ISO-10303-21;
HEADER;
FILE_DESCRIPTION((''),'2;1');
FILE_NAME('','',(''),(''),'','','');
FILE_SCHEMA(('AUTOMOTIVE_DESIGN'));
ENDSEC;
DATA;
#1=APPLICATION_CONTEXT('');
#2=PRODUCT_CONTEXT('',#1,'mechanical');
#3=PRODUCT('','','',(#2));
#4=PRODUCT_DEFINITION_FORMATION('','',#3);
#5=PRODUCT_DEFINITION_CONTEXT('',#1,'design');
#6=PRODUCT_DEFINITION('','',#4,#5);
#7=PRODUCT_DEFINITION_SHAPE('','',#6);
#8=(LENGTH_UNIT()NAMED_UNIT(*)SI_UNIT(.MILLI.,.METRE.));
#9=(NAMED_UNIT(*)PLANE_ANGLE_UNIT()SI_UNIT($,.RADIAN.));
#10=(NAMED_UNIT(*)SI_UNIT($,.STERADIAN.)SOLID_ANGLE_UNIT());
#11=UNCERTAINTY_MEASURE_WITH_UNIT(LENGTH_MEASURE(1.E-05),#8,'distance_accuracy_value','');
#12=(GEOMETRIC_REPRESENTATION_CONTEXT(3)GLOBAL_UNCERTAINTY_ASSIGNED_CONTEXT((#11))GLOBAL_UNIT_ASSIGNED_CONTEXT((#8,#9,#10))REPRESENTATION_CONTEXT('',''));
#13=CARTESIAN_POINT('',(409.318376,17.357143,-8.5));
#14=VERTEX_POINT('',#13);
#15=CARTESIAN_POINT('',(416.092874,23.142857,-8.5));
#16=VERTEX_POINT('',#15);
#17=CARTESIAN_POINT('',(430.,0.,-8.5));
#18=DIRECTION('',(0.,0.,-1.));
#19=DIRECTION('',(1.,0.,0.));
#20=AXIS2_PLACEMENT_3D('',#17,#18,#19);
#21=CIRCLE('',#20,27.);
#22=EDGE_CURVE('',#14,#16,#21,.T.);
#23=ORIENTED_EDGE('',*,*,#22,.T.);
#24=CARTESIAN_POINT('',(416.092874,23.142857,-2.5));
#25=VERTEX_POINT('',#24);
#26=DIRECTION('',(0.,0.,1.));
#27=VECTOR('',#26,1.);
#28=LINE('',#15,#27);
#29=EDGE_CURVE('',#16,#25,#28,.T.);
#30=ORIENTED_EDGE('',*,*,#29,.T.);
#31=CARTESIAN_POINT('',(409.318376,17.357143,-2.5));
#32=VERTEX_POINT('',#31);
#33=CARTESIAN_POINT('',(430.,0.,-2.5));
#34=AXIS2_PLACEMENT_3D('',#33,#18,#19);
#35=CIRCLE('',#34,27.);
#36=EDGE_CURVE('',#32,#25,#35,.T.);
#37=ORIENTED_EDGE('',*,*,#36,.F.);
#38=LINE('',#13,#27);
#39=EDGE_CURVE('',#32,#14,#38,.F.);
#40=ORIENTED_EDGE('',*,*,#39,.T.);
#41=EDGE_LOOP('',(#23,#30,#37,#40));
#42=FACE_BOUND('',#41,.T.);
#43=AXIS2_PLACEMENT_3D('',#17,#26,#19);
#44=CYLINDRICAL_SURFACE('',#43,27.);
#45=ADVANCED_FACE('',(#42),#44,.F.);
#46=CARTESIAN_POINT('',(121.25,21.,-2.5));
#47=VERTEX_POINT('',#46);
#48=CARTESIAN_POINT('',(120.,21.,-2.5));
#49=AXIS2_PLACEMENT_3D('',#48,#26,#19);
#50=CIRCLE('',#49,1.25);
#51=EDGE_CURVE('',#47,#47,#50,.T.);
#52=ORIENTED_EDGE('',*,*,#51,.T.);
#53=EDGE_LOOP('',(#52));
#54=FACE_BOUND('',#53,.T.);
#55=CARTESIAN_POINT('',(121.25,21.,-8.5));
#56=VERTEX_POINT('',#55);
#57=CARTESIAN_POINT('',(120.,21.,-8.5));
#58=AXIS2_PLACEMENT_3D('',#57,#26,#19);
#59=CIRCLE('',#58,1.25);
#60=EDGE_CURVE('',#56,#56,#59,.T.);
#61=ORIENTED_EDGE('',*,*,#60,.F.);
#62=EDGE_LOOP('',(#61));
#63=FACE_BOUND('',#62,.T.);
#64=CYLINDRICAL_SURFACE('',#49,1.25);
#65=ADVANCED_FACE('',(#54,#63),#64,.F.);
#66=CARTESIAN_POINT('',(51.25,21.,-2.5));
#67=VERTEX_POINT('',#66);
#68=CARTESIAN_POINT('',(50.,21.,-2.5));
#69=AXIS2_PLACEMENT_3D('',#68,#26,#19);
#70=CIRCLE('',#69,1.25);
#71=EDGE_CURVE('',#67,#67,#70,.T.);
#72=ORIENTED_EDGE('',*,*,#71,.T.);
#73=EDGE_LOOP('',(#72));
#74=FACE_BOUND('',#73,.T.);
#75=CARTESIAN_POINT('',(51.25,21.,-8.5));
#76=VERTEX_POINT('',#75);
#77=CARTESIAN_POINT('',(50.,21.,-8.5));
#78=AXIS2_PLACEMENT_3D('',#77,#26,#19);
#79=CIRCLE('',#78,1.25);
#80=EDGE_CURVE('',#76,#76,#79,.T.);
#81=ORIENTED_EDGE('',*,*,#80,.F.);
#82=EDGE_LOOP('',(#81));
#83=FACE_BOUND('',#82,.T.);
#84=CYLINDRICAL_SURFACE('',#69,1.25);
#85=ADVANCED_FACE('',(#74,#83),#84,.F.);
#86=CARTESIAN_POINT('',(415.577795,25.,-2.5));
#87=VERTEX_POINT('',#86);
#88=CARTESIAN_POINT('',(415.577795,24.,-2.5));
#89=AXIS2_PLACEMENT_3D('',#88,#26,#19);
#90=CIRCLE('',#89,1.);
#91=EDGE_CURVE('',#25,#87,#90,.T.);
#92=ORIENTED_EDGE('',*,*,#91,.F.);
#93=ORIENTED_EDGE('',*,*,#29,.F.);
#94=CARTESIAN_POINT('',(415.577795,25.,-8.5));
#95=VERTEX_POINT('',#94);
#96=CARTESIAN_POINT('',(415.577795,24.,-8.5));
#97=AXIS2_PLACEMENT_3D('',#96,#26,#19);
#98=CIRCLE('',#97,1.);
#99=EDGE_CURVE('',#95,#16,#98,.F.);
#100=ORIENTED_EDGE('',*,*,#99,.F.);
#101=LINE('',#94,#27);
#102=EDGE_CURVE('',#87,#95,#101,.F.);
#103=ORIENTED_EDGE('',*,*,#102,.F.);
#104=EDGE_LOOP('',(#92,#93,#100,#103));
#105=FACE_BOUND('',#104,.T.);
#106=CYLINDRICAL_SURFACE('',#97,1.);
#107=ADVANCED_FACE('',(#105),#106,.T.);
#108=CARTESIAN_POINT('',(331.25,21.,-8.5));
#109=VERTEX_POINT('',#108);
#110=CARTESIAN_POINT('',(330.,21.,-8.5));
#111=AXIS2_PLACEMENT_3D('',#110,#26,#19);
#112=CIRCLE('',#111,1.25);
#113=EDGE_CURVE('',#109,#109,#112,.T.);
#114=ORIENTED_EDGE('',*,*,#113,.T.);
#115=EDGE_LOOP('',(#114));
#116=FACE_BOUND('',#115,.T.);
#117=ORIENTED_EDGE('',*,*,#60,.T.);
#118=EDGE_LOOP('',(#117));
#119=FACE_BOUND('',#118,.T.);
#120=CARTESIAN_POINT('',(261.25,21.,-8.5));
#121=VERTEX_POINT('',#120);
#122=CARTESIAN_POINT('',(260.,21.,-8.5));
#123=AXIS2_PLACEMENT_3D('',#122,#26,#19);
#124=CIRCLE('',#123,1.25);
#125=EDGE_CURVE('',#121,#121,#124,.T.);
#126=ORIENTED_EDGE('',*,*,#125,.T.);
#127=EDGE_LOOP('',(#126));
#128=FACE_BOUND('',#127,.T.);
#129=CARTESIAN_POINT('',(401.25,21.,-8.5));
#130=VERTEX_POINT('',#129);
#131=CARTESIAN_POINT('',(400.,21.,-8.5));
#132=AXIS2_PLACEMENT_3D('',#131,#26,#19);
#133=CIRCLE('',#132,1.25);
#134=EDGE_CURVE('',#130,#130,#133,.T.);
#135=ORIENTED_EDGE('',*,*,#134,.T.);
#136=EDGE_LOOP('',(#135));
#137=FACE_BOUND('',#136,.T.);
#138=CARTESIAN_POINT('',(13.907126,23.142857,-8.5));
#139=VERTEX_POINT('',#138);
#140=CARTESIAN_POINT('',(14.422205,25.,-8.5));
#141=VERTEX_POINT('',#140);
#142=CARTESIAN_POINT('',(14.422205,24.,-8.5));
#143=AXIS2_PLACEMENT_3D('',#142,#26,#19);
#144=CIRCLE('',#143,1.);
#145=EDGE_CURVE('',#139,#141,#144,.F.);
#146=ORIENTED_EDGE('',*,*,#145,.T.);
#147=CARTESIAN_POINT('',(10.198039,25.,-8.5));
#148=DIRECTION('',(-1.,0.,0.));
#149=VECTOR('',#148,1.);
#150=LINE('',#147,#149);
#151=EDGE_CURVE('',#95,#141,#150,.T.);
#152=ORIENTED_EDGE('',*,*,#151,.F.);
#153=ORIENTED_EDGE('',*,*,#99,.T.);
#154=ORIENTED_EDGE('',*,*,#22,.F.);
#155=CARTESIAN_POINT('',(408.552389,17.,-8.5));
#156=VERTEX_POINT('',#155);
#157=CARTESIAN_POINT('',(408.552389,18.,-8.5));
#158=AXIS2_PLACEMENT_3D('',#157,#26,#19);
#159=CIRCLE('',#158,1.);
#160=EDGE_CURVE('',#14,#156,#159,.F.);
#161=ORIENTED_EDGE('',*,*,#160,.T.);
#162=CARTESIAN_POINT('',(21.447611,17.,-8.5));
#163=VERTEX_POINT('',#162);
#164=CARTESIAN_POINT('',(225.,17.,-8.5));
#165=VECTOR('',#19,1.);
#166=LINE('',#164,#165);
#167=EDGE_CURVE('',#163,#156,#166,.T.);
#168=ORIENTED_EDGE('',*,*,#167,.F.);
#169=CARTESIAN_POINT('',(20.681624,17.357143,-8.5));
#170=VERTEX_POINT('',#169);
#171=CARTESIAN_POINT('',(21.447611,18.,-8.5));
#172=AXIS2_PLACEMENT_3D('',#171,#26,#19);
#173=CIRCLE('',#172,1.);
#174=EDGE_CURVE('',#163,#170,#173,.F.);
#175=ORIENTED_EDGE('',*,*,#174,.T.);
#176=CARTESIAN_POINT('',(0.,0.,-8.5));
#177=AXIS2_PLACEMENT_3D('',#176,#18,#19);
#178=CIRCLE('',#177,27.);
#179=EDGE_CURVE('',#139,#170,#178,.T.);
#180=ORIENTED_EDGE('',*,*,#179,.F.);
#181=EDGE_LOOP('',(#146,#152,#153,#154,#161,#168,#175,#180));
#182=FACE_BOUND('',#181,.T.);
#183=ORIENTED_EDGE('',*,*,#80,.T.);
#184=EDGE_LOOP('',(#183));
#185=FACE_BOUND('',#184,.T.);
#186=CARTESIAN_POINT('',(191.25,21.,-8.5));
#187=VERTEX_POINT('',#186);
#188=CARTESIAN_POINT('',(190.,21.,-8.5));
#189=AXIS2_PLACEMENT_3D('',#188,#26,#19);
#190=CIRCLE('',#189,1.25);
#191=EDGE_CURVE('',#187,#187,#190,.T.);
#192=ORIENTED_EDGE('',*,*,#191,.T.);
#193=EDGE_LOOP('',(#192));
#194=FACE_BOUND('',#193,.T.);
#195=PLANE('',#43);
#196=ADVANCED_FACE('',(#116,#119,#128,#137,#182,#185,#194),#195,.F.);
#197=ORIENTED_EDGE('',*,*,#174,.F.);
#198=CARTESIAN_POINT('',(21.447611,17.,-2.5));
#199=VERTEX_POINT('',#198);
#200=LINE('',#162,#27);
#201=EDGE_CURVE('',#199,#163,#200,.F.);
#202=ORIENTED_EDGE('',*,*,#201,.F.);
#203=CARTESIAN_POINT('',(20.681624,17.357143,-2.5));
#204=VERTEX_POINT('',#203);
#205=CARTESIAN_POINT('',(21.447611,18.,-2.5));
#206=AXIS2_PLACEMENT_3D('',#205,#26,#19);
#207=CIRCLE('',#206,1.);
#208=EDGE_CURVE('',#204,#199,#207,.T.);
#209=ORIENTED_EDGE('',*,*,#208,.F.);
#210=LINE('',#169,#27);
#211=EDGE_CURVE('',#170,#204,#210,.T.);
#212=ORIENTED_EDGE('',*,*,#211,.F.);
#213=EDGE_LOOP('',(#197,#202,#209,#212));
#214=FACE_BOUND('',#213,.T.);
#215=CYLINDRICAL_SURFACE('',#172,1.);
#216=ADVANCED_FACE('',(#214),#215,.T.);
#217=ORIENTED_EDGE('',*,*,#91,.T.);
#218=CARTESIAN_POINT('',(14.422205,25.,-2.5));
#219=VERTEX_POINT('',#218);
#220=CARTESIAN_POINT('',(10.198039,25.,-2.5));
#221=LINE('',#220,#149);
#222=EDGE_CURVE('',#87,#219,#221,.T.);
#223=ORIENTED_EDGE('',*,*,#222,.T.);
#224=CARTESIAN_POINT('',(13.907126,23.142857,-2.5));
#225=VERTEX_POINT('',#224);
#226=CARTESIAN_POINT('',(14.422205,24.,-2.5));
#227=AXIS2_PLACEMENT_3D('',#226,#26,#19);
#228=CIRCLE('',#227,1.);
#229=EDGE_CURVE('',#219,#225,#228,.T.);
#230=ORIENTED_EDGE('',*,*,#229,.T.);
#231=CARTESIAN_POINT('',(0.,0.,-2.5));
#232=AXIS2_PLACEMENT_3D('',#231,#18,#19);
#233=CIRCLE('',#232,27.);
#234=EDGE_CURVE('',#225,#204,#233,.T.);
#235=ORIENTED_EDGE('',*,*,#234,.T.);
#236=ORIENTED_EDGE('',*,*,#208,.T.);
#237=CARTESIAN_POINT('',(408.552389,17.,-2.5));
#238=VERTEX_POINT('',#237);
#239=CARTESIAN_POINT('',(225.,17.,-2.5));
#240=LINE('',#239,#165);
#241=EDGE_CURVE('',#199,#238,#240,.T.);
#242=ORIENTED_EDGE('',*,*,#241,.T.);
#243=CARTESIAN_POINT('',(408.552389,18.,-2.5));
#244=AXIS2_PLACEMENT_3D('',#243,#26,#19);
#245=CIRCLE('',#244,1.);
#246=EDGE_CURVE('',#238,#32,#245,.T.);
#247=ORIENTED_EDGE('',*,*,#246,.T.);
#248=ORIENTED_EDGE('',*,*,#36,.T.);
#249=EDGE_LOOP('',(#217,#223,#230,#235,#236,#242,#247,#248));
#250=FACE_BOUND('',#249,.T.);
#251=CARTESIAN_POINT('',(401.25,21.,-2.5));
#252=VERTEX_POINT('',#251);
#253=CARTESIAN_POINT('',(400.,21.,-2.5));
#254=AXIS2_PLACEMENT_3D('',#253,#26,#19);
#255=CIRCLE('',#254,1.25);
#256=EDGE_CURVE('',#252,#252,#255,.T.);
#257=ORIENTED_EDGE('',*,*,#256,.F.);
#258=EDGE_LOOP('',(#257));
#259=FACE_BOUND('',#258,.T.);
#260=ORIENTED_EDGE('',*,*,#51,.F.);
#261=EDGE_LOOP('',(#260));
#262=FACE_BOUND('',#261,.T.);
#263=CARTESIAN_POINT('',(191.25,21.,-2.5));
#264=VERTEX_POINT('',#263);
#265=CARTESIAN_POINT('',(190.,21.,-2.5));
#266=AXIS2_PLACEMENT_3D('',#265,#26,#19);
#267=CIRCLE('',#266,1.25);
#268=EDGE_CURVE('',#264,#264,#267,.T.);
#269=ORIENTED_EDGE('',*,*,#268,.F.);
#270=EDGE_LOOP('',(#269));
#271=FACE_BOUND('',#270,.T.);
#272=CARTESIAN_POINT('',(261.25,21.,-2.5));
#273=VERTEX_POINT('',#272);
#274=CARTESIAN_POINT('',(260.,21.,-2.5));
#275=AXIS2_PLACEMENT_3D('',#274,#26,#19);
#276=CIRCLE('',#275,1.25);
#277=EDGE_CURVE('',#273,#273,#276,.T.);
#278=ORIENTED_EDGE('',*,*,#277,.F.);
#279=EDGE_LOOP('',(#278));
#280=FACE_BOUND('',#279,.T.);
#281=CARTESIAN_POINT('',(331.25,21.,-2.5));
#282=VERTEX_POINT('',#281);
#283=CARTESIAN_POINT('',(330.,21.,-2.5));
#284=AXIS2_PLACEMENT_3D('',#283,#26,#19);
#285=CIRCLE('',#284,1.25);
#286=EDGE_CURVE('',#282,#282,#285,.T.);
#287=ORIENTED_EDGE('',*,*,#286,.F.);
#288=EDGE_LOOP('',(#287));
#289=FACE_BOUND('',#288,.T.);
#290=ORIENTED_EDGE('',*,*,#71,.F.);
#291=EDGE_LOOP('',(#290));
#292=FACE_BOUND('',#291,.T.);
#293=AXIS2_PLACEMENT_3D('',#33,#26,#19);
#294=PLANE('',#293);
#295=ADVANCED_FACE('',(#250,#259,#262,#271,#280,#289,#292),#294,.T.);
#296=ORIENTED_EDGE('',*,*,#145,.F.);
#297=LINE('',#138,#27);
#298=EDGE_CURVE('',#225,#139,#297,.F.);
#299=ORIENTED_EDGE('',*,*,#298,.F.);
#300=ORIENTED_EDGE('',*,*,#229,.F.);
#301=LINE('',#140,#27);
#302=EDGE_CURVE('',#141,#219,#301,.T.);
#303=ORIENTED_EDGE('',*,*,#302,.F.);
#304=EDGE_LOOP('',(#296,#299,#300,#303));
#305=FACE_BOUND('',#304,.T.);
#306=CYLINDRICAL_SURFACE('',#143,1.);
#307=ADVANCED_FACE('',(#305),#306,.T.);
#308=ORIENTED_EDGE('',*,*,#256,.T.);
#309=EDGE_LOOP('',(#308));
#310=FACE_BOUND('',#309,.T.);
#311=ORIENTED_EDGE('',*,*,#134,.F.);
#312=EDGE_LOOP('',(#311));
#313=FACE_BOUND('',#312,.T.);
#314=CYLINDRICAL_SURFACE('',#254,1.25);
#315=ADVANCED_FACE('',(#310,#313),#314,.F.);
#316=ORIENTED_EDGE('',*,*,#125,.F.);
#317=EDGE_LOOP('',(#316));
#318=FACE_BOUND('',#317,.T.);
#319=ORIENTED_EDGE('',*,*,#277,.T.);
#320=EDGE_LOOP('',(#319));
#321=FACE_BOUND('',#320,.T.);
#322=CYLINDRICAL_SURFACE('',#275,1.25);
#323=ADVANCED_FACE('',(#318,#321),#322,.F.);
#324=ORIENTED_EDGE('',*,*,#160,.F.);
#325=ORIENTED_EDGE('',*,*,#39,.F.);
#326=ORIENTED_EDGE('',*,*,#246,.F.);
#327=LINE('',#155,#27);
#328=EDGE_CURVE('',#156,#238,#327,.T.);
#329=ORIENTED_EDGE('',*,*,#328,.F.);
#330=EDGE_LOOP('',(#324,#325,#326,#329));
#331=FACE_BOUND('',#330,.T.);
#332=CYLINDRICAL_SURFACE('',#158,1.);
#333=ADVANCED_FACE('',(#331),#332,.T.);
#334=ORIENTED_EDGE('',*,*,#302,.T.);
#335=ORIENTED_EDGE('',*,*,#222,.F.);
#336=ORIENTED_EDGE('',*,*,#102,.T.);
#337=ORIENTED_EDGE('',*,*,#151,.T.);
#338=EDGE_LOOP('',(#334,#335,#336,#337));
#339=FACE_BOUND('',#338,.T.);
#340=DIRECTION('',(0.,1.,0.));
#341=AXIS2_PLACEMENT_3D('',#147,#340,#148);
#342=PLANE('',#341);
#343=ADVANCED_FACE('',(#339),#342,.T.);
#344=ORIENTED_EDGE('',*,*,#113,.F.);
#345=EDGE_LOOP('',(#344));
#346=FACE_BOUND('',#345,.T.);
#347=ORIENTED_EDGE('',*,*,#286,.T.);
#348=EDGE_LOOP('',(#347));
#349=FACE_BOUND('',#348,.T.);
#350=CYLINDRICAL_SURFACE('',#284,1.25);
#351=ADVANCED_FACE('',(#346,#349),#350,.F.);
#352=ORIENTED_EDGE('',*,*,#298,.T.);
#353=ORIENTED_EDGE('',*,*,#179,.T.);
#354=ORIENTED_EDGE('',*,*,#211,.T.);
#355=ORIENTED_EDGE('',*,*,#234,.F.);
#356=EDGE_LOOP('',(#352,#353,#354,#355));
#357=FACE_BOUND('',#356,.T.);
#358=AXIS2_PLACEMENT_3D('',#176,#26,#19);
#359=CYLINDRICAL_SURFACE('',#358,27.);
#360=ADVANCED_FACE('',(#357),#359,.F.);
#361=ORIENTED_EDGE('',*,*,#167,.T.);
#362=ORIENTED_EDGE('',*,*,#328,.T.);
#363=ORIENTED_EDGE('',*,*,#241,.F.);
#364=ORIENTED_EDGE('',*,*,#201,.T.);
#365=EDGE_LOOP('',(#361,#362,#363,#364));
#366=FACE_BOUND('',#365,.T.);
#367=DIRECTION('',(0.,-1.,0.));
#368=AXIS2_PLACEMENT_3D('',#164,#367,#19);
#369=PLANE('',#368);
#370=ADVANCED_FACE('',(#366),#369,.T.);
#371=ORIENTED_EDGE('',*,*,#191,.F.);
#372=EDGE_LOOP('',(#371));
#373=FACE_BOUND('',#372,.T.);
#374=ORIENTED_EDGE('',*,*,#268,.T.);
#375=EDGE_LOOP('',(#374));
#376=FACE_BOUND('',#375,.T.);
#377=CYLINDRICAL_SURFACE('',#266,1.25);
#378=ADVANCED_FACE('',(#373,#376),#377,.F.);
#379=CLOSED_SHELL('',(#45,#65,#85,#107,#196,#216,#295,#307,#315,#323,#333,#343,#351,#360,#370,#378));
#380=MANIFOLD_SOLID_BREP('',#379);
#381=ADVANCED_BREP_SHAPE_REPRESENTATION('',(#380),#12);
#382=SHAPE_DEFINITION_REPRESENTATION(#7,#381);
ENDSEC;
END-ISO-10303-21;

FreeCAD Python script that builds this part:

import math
import FreeCAD as App
import Part
import Sketcher

V = App.Vector


def edges_at(feature, points):
    """Names of the edges that pass closest to the given points."""
    edges = feature.Shape.Edges
    near = lambda p: min(range(len(edges)), key=lambda i: edges[i].distToShape(Part.Vertex(*p))[0])
    return sorted({f"Edge{near(p) + 1}" for p in points})

doc = App.newDocument("Part")
body = doc.addObject("PartDesign::Body", "Body")

sketch1 = body.newObject("Sketcher::SketchObject", "Sketch")
sketch1.AttachmentSupport = (doc.getObject("XY_Plane"), [""])
sketch1.MapMode = "FlatFace"
sketch1.AttachmentOffset = App.Placement(V(0, 0, -2.5), App.Rotation())
sketch1.addGeometry([
    Part.ArcOfCircle(Part.Circle(V(430, 0, 0), V(0, 0, 1), 27), math.radians(112.191607), math.radians(140.977197)),
    Part.LineSegment(V(419.801961, 25, 0), V(10.198039, 25, 0)),
    Part.ArcOfCircle(Part.Circle(V(0, 0, 0), V(0, 0, 1), 27), math.radians(39.022803), math.radians(67.808393)),
    Part.LineSegment(V(20.976177, 17, 0), V(409.023823, 17, 0)),
], False)
sketch1.addConstraint([
    Sketcher.Constraint("Coincident", 0, 1, 1, 1),
    Sketcher.Constraint("Coincident", 1, 2, 2, 2),
    Sketcher.Constraint("Coincident", 2, 1, 3, 1),
    Sketcher.Constraint("Coincident", 3, 2, 0, 2),
    Sketcher.Constraint("Horizontal", 1),
    Sketcher.Constraint("Horizontal", 3),
    Sketcher.Constraint("Coincident", 2, 3, -1, 1),
    Sketcher.Constraint("Equal", 0, 2),
    Sketcher.Constraint("PointOnObject", 0, 3, -1),
    Sketcher.Constraint("Radius", 0, 27.0),
    Sketcher.Constraint("DistanceX", -1, 1, 0, 3, 430.0),
    Sketcher.Constraint("DistanceY", -1, 1, 0, 1, 25.0),
    Sketcher.Constraint("DistanceY", -1, 1, 2, 1, 17.0),
])
pad1 = body.newObject("PartDesign::Pad", "Pad")
pad1.Profile = sketch1
pad1.Length = 6
pad1.Reversed = True
doc.recompute()

fillet = body.newObject("PartDesign::Fillet", "Fillet")
fillet.Base = (pad1, edges_at(pad1, [
    (409.024, 17, -5.5),
    (20.976, 17, -5.5),
    (10.198, 25, -5.5),
    (419.802, 25, -5.5),
]))
fillet.Radius = 1

sketch2 = body.newObject("Sketcher::SketchObject", "Sketch001")
sketch2.AttachmentSupport = (doc.getObject("XY_Plane"), [""])
sketch2.MapMode = "FlatFace"
sketch2.AttachmentOffset = App.Placement(V(0, 0, -2.5), App.Rotation())
sketch2.addGeometry([
    Part.Circle(V(400, 21, 0), V(0, 0, 1), 1.25),
    Part.Circle(V(330, 21, 0), V(0, 0, 1), 1.25),
    Part.Circle(V(260, 21, 0), V(0, 0, 1), 1.25),
    Part.Circle(V(190, 21, 0), V(0, 0, 1), 1.25),
    Part.Circle(V(120, 21, 0), V(0, 0, 1), 1.25),
    Part.Circle(V(50, 21, 0), V(0, 0, 1), 1.25),
], False)
sketch2.addConstraint([
    Sketcher.Constraint("Equal", 0, 1),
    Sketcher.Constraint("Equal", 1, 2),
    Sketcher.Constraint("Equal", 2, 3),
    Sketcher.Constraint("Equal", 3, 4),
    Sketcher.Constraint("Equal", 4, 5),
    Sketcher.Constraint("Horizontal", 0, 3, 1, 3),
    Sketcher.Constraint("Horizontal", 1, 3, 2, 3),
    Sketcher.Constraint("Horizontal", 2, 3, 3, 3),
    Sketcher.Constraint("Horizontal", 3, 3, 4, 3),
    Sketcher.Constraint("Horizontal", 4, 3, 5, 3),
    Sketcher.Constraint("Diameter", 0, 2.5),
    Sketcher.Constraint("DistanceX", -1, 1, 0, 3, 400.0),
    Sketcher.Constraint("DistanceY", -1, 1, 0, 3, 21.0),
    Sketcher.Constraint("DistanceX", -1, 1, 1, 3, 330.0),
    Sketcher.Constraint("DistanceX", -1, 1, 2, 3, 260.0),
    Sketcher.Constraint("DistanceX", -1, 1, 3, 3, 190.0),
    Sketcher.Constraint("DistanceX", -1, 1, 4, 3, 120.0),
    Sketcher.Constraint("DistanceX", -1, 1, 5, 3, 50.0),
])
doc.recompute()
hole = body.newObject("PartDesign::Hole", "Hole")
hole.Profile = sketch2
hole.ThreadType = "None"
hole.Diameter = 2.5
hole.DepthType = "ThroughAll"

doc.recompute()
